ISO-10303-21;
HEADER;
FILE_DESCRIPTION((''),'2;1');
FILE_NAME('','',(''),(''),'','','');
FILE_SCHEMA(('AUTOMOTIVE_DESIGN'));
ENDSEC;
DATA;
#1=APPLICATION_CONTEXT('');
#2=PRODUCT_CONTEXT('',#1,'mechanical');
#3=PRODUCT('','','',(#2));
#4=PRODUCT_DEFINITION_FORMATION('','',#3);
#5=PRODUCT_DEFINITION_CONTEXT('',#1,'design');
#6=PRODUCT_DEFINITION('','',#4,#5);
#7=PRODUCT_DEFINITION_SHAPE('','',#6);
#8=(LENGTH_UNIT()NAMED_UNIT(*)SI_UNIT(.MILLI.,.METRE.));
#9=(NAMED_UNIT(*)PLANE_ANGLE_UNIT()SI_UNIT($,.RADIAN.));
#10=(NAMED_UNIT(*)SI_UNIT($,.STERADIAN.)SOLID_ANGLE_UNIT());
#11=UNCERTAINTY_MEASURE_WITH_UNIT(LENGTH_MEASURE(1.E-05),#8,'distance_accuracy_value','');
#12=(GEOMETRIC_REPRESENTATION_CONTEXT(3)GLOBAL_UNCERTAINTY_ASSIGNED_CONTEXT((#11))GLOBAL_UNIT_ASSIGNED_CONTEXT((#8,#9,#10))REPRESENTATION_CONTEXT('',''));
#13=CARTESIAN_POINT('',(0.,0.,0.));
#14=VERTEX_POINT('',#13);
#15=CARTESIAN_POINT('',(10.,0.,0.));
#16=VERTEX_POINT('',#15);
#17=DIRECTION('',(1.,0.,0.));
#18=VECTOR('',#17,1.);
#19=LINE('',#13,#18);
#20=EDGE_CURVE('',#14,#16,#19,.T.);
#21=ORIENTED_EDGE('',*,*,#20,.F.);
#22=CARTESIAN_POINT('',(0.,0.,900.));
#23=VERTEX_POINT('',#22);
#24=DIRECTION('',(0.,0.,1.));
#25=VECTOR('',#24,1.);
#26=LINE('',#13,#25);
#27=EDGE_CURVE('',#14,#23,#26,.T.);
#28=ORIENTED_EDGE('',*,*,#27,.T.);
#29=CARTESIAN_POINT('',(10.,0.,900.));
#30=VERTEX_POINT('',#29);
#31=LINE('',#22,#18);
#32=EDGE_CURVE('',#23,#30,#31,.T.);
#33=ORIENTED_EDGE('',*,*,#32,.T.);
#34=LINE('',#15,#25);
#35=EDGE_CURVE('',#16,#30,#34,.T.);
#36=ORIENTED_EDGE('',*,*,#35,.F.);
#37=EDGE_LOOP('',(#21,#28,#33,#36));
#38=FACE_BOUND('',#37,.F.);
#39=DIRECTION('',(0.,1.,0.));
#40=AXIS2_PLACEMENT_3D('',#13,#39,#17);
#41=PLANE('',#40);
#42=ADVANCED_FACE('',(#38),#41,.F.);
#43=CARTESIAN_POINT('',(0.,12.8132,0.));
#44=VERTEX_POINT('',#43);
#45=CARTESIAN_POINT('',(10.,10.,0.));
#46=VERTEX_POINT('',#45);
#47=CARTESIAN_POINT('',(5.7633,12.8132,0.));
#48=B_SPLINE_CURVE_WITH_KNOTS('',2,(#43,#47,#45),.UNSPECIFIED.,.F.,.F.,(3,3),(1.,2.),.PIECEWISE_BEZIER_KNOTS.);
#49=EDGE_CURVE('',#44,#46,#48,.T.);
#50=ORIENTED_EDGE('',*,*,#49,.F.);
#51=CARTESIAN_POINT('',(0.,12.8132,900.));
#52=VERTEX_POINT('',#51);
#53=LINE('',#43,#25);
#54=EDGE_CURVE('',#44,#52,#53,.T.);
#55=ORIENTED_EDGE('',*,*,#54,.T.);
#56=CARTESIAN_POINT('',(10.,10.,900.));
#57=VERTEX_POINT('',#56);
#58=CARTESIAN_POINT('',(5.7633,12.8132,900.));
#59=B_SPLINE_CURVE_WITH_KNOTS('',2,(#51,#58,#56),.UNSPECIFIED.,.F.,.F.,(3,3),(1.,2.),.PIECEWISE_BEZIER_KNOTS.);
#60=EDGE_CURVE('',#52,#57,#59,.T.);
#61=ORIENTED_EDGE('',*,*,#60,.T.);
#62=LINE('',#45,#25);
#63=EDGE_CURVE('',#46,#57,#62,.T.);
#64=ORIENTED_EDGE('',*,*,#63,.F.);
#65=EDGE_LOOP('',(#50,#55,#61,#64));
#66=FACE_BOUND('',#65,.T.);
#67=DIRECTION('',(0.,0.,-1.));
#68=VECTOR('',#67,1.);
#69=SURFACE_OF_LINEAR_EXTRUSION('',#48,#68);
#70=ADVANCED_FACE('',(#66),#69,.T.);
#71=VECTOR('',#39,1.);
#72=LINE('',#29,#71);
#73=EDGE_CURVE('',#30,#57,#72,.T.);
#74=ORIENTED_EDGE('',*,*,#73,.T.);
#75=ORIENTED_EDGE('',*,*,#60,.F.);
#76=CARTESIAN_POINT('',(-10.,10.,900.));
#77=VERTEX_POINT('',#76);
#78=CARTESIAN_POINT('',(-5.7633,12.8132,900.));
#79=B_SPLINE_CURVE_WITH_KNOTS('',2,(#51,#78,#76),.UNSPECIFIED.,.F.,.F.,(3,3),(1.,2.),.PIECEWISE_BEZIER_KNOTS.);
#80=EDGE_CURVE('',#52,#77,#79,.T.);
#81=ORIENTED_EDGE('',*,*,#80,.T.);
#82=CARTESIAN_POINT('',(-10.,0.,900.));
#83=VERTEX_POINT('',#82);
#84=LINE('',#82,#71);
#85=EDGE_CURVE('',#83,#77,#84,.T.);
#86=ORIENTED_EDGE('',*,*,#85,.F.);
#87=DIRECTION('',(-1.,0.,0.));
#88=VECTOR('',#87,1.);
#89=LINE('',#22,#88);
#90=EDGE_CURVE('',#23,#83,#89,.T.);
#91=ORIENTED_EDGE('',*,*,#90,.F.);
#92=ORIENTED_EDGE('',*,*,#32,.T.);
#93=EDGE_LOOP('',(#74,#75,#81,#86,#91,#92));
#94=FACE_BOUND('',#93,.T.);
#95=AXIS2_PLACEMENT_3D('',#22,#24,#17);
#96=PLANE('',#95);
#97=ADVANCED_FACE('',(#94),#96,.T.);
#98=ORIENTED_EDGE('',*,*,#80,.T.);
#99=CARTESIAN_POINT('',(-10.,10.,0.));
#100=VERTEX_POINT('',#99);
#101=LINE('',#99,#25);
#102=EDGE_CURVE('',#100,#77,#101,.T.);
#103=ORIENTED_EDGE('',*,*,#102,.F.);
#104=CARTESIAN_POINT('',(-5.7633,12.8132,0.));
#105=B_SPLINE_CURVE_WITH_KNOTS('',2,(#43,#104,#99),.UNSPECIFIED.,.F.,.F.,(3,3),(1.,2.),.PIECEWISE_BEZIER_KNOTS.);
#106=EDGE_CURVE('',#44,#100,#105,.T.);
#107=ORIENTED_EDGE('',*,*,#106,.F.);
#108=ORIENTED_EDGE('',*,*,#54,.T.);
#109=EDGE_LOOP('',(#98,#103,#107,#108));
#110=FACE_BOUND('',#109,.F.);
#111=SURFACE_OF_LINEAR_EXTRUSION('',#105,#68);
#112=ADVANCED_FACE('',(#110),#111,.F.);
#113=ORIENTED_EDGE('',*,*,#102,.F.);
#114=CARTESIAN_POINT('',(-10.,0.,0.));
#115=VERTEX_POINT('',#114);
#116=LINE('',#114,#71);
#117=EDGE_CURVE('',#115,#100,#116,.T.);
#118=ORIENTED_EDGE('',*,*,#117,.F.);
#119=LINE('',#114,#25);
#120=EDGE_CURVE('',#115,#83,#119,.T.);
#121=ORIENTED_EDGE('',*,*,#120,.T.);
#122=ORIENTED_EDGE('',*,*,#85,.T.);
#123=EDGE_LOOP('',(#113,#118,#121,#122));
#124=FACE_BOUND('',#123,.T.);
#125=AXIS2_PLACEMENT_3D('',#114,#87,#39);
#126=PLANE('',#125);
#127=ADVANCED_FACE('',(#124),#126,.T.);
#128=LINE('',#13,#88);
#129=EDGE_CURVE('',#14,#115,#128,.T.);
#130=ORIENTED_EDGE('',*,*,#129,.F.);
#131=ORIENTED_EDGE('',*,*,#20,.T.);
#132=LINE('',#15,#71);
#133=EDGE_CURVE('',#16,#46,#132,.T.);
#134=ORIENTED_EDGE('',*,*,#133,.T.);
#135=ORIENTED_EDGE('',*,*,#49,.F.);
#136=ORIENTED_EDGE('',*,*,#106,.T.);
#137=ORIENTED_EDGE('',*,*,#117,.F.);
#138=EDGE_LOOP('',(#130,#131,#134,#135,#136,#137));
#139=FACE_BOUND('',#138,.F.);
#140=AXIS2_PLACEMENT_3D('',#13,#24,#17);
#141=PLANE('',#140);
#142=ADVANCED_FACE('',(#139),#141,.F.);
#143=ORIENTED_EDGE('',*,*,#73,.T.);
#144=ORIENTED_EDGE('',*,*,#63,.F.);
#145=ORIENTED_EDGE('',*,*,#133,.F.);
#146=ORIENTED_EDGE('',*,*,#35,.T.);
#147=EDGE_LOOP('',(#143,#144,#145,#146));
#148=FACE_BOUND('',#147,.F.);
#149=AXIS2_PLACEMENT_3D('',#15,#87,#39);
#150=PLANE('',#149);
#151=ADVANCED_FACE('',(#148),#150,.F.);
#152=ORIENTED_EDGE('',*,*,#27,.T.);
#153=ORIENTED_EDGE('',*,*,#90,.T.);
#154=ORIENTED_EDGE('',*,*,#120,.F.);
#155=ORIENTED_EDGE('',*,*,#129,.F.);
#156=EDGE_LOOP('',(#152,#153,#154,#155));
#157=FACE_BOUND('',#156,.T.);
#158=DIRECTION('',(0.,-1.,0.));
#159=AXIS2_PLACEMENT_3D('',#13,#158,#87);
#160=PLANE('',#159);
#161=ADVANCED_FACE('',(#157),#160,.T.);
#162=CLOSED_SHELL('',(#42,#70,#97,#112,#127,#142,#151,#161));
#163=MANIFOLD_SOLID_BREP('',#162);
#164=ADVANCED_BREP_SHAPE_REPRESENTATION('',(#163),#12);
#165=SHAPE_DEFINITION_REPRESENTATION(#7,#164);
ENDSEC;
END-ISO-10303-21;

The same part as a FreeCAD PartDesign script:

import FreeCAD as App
import Part
import Sketcher

doc = App.newDocument("Part")
body = doc.addObject("PartDesign::Body", "Body")

# Sketch on XY plane
sketch1 = doc.addObject("Sketcher::SketchObject", "Sketch")
body.addObject(sketch1)
sketch1.AttachmentSupport = (doc.XY_Plane, [""])
sketch1.MapMode = "FlatFace"
sketch1.addGeometry([
    Part.BSplineCurve([App.Vector(0, 12.8132, 0), App.Vector(5.7633, 12.8132, 0), App.Vector(10, 10, 0)], [3, 3], [1, 2], False, 2, [1, 1, 1], False),  # 0
    Part.BSplineCurve([App.Vector(0, 12.8132, 0), App.Vector(-5.7633, 12.8132, 0), App.Vector(-10, 10, 0)], [3, 3], [1, 2], False, 2, [1, 1, 1], False),  # 1
    Part.LineSegment(App.Vector(-10, 10, 0), App.Vector(-10, 0, 0)),  # 2
    Part.LineSegment(App.Vector(-10, 0, 0), App.Vector(10, 0, 0)),  # 3
    Part.LineSegment(App.Vector(10, 0, 0), App.Vector(10, 10, 0)),  # 4
], False)
sketch1.addConstraint([
    Sketcher.Constraint("Block", 0),
    Sketcher.Constraint("Block", 1),
    Sketcher.Constraint("Coincident", 1, 2, 2, 1),
    Sketcher.Constraint("Coincident", 2, 2, 3, 1),
    Sketcher.Constraint("Coincident", 3, 2, 4, 1),
    Sketcher.Constraint("Coincident", 4, 2, 0, 2),
    Sketcher.Constraint("Vertical", 2),
    Sketcher.Constraint("Horizontal", 3),
    Sketcher.Constraint("Vertical", 4),
    Sketcher.Constraint("PointOnObject", 2, 2, -1),
])
pad1 = doc.addObject("PartDesign::Pad", "Pad")
body.addObject(pad1)
pad1.Profile = sketch1
pad1.Length = 900

doc.recompute()
